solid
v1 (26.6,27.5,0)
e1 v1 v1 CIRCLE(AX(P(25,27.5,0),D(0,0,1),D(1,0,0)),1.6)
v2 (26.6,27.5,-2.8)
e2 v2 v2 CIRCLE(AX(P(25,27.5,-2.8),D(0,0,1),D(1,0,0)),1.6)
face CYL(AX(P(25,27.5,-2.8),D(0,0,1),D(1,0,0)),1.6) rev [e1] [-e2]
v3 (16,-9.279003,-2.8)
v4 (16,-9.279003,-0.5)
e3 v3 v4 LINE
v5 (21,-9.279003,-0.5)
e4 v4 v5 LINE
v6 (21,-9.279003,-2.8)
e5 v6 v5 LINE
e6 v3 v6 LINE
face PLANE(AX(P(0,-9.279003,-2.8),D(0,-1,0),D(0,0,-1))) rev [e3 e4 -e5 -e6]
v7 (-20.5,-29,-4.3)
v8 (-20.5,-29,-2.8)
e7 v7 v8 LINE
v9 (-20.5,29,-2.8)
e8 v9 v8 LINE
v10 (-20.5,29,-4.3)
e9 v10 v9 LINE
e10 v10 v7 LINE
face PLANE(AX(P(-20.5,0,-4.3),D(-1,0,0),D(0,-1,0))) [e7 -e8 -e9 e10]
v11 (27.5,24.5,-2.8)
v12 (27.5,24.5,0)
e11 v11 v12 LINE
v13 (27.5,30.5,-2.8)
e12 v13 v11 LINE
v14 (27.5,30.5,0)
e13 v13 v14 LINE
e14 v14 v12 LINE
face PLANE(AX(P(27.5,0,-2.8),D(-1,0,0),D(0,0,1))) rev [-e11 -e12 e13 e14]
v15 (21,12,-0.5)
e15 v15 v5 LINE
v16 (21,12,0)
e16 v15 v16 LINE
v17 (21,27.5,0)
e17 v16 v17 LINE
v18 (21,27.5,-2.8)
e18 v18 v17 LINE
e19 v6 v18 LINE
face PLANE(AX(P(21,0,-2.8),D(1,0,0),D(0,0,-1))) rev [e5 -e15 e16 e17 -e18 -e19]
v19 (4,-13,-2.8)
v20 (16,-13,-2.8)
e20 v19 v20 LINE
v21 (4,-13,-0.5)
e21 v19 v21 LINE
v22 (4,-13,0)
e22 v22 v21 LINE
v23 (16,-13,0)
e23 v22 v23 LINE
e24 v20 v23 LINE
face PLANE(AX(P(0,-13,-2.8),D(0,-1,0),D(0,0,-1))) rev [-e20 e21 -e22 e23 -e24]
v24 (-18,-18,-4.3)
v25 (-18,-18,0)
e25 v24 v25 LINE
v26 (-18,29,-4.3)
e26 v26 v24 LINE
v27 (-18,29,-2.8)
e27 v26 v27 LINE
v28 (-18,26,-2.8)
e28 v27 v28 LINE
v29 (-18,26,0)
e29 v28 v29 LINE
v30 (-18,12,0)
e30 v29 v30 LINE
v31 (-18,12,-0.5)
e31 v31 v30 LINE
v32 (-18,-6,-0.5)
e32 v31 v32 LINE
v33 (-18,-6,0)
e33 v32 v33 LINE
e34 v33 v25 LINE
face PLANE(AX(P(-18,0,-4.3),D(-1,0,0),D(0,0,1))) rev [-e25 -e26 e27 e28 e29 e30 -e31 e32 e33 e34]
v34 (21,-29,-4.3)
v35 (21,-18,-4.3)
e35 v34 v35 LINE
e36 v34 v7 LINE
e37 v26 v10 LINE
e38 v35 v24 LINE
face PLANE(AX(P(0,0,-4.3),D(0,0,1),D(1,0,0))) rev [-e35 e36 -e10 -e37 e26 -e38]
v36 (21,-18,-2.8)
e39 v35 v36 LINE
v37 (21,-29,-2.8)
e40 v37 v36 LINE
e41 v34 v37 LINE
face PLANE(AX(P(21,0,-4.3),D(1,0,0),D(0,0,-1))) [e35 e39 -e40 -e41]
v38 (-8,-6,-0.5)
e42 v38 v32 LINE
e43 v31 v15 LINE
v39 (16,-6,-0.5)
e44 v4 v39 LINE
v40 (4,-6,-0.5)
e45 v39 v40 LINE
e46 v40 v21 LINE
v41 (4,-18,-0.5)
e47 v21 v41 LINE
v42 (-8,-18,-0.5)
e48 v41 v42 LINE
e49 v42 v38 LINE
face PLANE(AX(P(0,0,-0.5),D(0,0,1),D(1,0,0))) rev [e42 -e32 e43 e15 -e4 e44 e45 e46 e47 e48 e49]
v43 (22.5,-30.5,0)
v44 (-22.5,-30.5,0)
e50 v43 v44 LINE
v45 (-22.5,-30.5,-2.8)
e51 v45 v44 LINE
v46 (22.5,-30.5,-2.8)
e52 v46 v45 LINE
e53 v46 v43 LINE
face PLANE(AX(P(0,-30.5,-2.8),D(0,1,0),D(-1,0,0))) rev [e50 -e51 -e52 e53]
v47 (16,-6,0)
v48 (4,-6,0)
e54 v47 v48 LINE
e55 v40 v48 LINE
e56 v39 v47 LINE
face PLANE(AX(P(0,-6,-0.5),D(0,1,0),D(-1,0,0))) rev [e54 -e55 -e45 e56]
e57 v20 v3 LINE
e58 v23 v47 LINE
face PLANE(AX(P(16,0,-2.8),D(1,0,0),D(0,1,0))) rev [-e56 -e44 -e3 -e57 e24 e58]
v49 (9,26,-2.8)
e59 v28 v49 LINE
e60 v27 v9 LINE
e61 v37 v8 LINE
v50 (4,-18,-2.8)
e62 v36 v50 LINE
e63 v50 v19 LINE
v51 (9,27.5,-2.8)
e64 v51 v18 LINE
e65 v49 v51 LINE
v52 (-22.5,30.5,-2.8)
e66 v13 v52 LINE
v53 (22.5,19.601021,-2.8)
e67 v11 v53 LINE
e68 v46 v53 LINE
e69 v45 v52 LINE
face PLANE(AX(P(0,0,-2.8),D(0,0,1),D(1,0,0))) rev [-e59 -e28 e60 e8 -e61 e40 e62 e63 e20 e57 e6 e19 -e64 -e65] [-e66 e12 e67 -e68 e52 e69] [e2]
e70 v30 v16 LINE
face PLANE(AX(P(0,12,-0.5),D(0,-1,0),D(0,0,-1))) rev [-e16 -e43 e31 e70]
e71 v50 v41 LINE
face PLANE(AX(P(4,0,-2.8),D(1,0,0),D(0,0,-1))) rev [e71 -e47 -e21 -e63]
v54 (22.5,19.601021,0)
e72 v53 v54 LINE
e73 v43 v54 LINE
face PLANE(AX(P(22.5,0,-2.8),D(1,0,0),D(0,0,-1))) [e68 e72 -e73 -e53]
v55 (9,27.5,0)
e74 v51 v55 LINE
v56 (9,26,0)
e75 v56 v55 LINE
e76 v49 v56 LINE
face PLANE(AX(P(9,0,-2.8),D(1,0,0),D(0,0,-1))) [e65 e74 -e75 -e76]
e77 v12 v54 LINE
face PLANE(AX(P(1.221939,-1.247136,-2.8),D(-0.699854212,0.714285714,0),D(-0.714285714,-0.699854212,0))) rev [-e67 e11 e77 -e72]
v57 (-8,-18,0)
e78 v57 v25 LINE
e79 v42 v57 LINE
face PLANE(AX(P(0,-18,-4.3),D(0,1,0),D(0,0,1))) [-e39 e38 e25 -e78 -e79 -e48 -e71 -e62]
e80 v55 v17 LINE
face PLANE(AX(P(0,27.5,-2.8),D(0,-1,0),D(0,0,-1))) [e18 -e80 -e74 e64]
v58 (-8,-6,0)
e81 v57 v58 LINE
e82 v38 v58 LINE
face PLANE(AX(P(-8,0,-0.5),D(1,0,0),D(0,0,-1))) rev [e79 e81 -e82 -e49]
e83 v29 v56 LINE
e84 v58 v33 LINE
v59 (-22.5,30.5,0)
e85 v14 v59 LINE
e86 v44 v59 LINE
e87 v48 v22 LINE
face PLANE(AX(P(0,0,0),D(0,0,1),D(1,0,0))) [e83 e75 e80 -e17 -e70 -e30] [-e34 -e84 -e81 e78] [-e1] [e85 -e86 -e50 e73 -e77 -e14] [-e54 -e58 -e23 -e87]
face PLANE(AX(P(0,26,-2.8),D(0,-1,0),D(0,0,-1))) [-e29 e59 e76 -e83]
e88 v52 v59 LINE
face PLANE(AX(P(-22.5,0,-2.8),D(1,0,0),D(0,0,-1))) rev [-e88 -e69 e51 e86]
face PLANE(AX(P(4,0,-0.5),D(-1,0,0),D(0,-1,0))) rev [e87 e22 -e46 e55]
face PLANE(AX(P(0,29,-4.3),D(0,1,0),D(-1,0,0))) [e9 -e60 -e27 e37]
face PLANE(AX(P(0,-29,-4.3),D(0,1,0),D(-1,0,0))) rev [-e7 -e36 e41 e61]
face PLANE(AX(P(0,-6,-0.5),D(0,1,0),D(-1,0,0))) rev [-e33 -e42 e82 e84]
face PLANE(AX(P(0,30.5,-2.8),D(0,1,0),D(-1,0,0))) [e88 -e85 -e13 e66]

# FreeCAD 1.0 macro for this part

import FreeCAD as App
import Part
import Sketcher
from FreeCAD import Vector

doc = App.newDocument("Part")
body = doc.addObject("PartDesign::Body", "Body")

# Sketch on XY plane
sketch1 = body.newObject("Sketcher::SketchObject", "Sketch")
sketch1.AttachmentSupport = (doc.getObject("XY_Plane"), [""])
sketch1.MapMode = "FlatFace"
sketch1.addGeometry(Part.LineSegment(Vector(22.5, -30.5, 0), Vector(22.5, 19.6, 0)), False)
sketch1.addGeometry(Part.LineSegment(Vector(22.5, 19.6, 0), Vector(27.5, 24.5, 0)), False)
sketch1.addGeometry(Part.LineSegment(Vector(27.5, 24.5, 0), Vector(27.5, 30.5, 0)), False)
sketch1.addGeometry(Part.LineSegment(Vector(27.5, 30.5, 0), Vector(-22.5, 30.5, 0)), False)
sketch1.addGeometry(Part.LineSegment(Vector(-22.5, 30.5, 0), Vector(-22.5, -30.5, 0)), False)
sketch1.addGeometry(Part.LineSegment(Vector(-22.5, -30.5, 0), Vector(22.5, -30.5, 0)), False)
sketch1.addGeometry(Part.LineSegment(Vector(21, -18, 0), Vector(21, -29, 0)), False)
sketch1.addGeometry(Part.LineSegment(Vector(21, -29, 0), Vector(-20.5, -29, 0)), False)
sketch1.addGeometry(Part.LineSegment(Vector(-20.5, -29, 0), Vector(-20.5, 29, 0)), False)
sketch1.addGeometry(Part.LineSegment(Vector(-20.5, 29, 0), Vector(-18, 29, 0)), False)
sketch1.addGeometry(Part.LineSegment(Vector(-18, 29, 0), Vector(-18, 26, 0)), False)
sketch1.addGeometry(Part.LineSegment(Vector(-18, 26, 0), Vector(9, 26, 0)), False)
sketch1.addGeometry(Part.LineSegment(Vector(9, 26, 0), Vector(9, 27.5, 0)), False)
sketch1.addGeometry(Part.LineSegment(Vector(9, 27.5, 0), Vector(21, 27.5, 0)), False)
sketch1.addGeometry(Part.LineSegment(Vector(21, 27.5, 0), Vector(21, -9.3, 0)), False)
sketch1.addGeometry(Part.LineSegment(Vector(21, -9.3, 0), Vector(16, -9.3, 0)), False)
sketch1.addGeometry(Part.LineSegment(Vector(16, -9.3, 0), Vector(16, -13, 0)), False)
sketch1.addGeometry(Part.LineSegment(Vector(16, -13, 0), Vector(4, -13, 0)), False)
sketch1.addGeometry(Part.LineSegment(Vector(4, -13, 0), Vector(4, -18, 0)), False)
sketch1.addGeometry(Part.LineSegment(Vector(4, -18, 0), Vector(21, -18, 0)), False)
sketch1.addGeometry(Part.Circle(Vector(25, 27.5, 0), Vector(0, 0, 1), 1.6), False)
sketch1.addConstraint(Sketcher.Constraint("Coincident", 0, 2, 1, 1))
sketch1.addConstraint(Sketcher.Constraint("Coincident", 1, 2, 2, 1))
sketch1.addConstraint(Sketcher.Constraint("Coincident", 2, 2, 3, 1))
sketch1.addConstraint(Sketcher.Constraint("Coincident", 3, 2, 4, 1))
sketch1.addConstraint(Sketcher.Constraint("Coincident", 4, 2, 5, 1))
sketch1.addConstraint(Sketcher.Constraint("Coincident", 5, 2, 0, 1))
sketch1.addConstraint(Sketcher.Constraint("Coincident", 6, 2, 7, 1))
sketch1.addConstraint(Sketcher.Constraint("Coincident", 7, 2, 8, 1))
sketch1.addConstraint(Sketcher.Constraint("Coincident", 8, 2, 9, 1))
sketch1.addConstraint(Sketcher.Constraint("Coincident", 9, 2, 10, 1))
sketch1.addConstraint(Sketcher.Constraint("Coincident", 10, 2, 11, 1))
sketch1.addConstraint(Sketcher.Constraint("Coincident", 11, 2, 12, 1))
sketch1.addConstraint(Sketcher.Constraint("Coincident", 12, 2, 13, 1))
sketch1.addConstraint(Sketcher.Constraint("Coincident", 13, 2, 14, 1))
sketch1.addConstraint(Sketcher.Constraint("Coincident", 14, 2, 15, 1))
sketch1.addConstraint(Sketcher.Constraint("Coincident", 15, 2, 16, 1))
sketch1.addConstraint(Sketcher.Constraint("Coincident", 16, 2, 17, 1))
sketch1.addConstraint(Sketcher.Constraint("Coincident", 17, 2, 18, 1))
sketch1.addConstraint(Sketcher.Constraint("Coincident", 18, 2, 19, 1))
sketch1.addConstraint(Sketcher.Constraint("Coincident", 19, 2, 6, 1))
sketch1.addConstraint(Sketcher.Constraint("Vertical", 0))
sketch1.addConstraint(Sketcher.Constraint("Vertical", 2))
sketch1.addConstraint(Sketcher.Constraint("Horizontal", 3))
sketch1.addConstraint(Sketcher.Constraint("Vertical", 4))
sketch1.addConstraint(Sketcher.Constraint("Horizontal", 5))
sketch1.addConstraint(Sketcher.Constraint("Vertical", 6))
sketch1.addConstraint(Sketcher.Constraint("Horizontal", 7))
sketch1.addConstraint(Sketcher.Constraint("Vertical", 8))
sketch1.addConstraint(Sketcher.Constraint("Horizontal", 9))
sketch1.addConstraint(Sketcher.Constraint("Vertical", 10))
sketch1.addConstraint(Sketcher.Constraint("Horizontal", 11))
sketch1.addConstraint(Sketcher.Constraint("Vertical", 12))
sketch1.addConstraint(Sketcher.Constraint("Horizontal", 13))
sketch1.addConstraint(Sketcher.Constraint("Vertical", 14))
sketch1.addConstraint(Sketcher.Constraint("Horizontal", 15))
sketch1.addConstraint(Sketcher.Constraint("Vertical", 16))
sketch1.addConstraint(Sketcher.Constraint("Horizontal", 17))
sketch1.addConstraint(Sketcher.Constraint("Vertical", 18))
sketch1.addConstraint(Sketcher.Constraint("Horizontal", 19))
sketch1.addConstraint(Sketcher.Constraint("Symmetric", 3, 2, 5, 2, -1, 1))
sketch1.addConstraint(Sketcher.Constraint("Horizontal", 20, 3, 12, 2))
sketch1.addConstraint(Sketcher.Constraint("Vertical", 6, 2, 13, 2))
sketch1.addConstraint(Sketcher.Constraint("Equal", 13, 17))
sketch1.addConstraint(Sketcher.Constraint("Equal", 15, 18))
sketch1.addConstraint(Sketcher.Constraint("Diameter", 20, 3.2))
sketch1.addConstraint(Sketcher.Constraint("DistanceX", 3, 2, 3, 1, 50.0))
sketch1.addConstraint(Sketcher.Constraint("DistanceX", 5, 1, 5, 2, 45.0))
sketch1.addConstraint(Sketcher.Constraint("DistanceX", 11, 1, 11, 2, 27.0))
sketch1.addConstraint(Sketcher.Constraint("DistanceX", 13, 1, 13, 2, 12.0))
sketch1.addConstraint(Sketcher.Constraint("DistanceX", 15, 2, 15, 1, 5.0))
sketch1.addConstraint(Sketcher.Constraint("DistanceY", 2, 1, 2, 2, 6.0))
sketch1.addConstraint(Sketcher.Constraint("DistanceY", 4, 2, 4, 1, 61.0))
sketch1.addConstraint(Sketcher.Constraint("DistanceY", 6, 2, 6, 1, 11.0))
sketch1.addConstraint(Sketcher.Constraint("DistanceY", 8, 1, 8, 2, 58.0))
sketch1.addConstraint(Sketcher.Constraint("DistanceY", 10, 2, 10, 1, 3.0))
sketch1.addConstraint(Sketcher.Constraint("Distance", 1, 7.0))
sketch1.addConstraint(Sketcher.Constraint("DistanceX", 7, 2, 7, 1, 41.5))
sketch1.addConstraint(Sketcher.Constraint("DistanceY", 12, 1, 12, 2, 1.5))
sketch1.addConstraint(Sketcher.Constraint("DistanceX", -1, 1, 20, 3, 25.0))
sketch1.addConstraint(Sketcher.Constraint("DistanceX", -1, 1, 6, 2, 21.0))
sketch1.addConstraint(Sketcher.Constraint("DistanceY", 6, 2, -1, 1, 29.0))
sketch1.addConstraint(Sketcher.Constraint("DistanceY", 14, 2, 14, 1, 36.779003))
pad1 = body.newObject("PartDesign::Pad", "Pad")
pad1.Profile = sketch1
pad1.Length = 2.8
pad1.Reversed = True

# Sketch on XY plane
sketch2 = body.newObject("Sketcher::SketchObject", "Sketch001")
sketch2.AttachmentSupport = (doc.getObject("XY_Plane"), [""])
sketch2.MapMode = "FlatFace"
sketch2.addGeometry(Part.LineSegment(Vector(16, -9.3, 0), Vector(21, -9.3, 0)), False)
sketch2.addGeometry(Part.LineSegment(Vector(21, -9.3, 0), Vector(21, 12, 0)), False)
sketch2.addGeometry(Part.LineSegment(Vector(21, 12, 0), Vector(-18, 12, 0)), False)
sketch2.addGeometry(Part.LineSegment(Vector(-18, 12, 0), Vector(-18, -6, 0)), False)
sketch2.addGeometry(Part.LineSegment(Vector(-18, -6, 0), Vector(-8, -6, 0)), False)
sketch2.addGeometry(Part.LineSegment(Vector(-8, -6, 0), Vector(-8, -18, 0)), False)
sketch2.addGeometry(Part.LineSegment(Vector(-8, -18, 0), Vector(4, -18, 0)), False)
sketch2.addGeometry(Part.LineSegment(Vector(4, -18, 0), Vector(4, -6, 0)), False)
sketch2.addGeometry(Part.LineSegment(Vector(4, -6, 0), Vector(16, -6, 0)), False)
sketch2.addGeometry(Part.LineSegment(Vector(16, -6, 0), Vector(16, -9.3, 0)), False)
sketch2.addConstraint(Sketcher.Constraint("Coincident", 0, 2, 1, 1))
sketch2.addConstraint(Sketcher.Constraint("Coincident", 1, 2, 2, 1))
sketch2.addConstraint(Sketcher.Constraint("Coincident", 2, 2, 3, 1))
sketch2.addConstraint(Sketcher.Constraint("Coincident", 3, 2, 4, 1))
sketch2.addConstraint(Sketcher.Constraint("Coincident", 4, 2, 5, 1))
sketch2.addConstraint(Sketcher.Constraint("Coincident", 5, 2, 6, 1))
sketch2.addConstraint(Sketcher.Constraint("Coincident", 6, 2, 7, 1))
sketch2.addConstraint(Sketcher.Constraint("Coincident", 7, 2, 8, 1))
sketch2.addConstraint(Sketcher.Constraint("Coincident", 8, 2, 9, 1))
sketch2.addConstraint(Sketcher.Constraint("Coincident", 9, 2, 0, 1))
sketch2.addConstraint(Sketcher.Constraint("Horizontal", 0))
sketch2.addConstraint(Sketcher.Constraint("Vertical", 1))
sketch2.addConstraint(Sketcher.Constraint("Horizontal", 2))
sketch2.addConstraint(Sketcher.Constraint("Vertical", 3))
sketch2.addConstraint(Sketcher.Constraint("Horizontal", 4))
sketch2.addConstraint(Sketcher.Constraint("Vertical", 5))
sketch2.addConstraint(Sketcher.Constraint("Horizontal", 6))
sketch2.addConstraint(Sketcher.Constraint("Vertical", 7))
sketch2.addConstraint(Sketcher.Constraint("Horizontal", 8))
sketch2.addConstraint(Sketcher.Constraint("Vertical", 9))
sketch2.addConstraint(Sketcher.Constraint("Horizontal", 4, 2, 7, 2))
sketch2.addConstraint(Sketcher.Constraint("Equal", 6, 8))
sketch2.addConstraint(Sketcher.Constraint("Equal", 8, 5))
sketch2.addConstraint(Sketcher.Constraint("DistanceX", 0, 1, 0, 2, 5.0))
sketch2.addConstraint(Sketcher.Constraint("DistanceX", 2, 2, 2, 1, 39.0))
sketch2.addConstraint(Sketcher.Constraint("DistanceX", 4, 1, 4, 2, 10.0))
sketch2.addConstraint(Sketcher.Constraint("DistanceY", 3, 2, 3, 1, 18.0))
sketch2.addConstraint(Sketcher.Constraint("DistanceX", -1, 1, 0, 2, 21.0))
sketch2.addConstraint(Sketcher.Constraint("DistanceY", -1, 1, 1, 2, 12.0))
sketch2.addConstraint(Sketcher.Constraint("DistanceY", 1, 1, 1, 2, 21.279003))
pad2 = body.newObject("PartDesign::Pad", "Pad001")
pad2.Profile = sketch2
pad2.Length = 0.5
pad2.Reversed = True

# Sketch on XY plane
sketch3 = body.newObject("Sketcher::SketchObject", "Sketch002")
sketch3.AttachmentSupport = (doc.getObject("XY_Plane"), [""])
sketch3.MapMode = "FlatFace"
sketch3.addGeometry(Part.LineSegment(Vector(-20.5, -29, 0), Vector(21, -29, 0)), False)
sketch3.addGeometry(Part.LineSegment(Vector(21, -29, 0), Vector(21, -18, 0)), False)
sketch3.addGeometry(Part.LineSegment(Vector(21, -18, 0), Vector(-18, -18, 0)), False)
sketch3.addGeometry(Part.LineSegment(Vector(-18, -18, 0), Vector(-18, 29, 0)), False)
sketch3.addGeometry(Part.LineSegment(Vector(-18, 29, 0), Vector(-20.5, 29, 0)), False)
sketch3.addGeometry(Part.LineSegment(Vector(-20.5, 29, 0), Vector(-20.5, -29, 0)), False)
sketch3.addConstraint(Sketcher.Constraint("Coincident", 0, 2, 1, 1))
sketch3.addConstraint(Sketcher.Constraint("Coincident", 1, 2, 2, 1))
sketch3.addConstraint(Sketcher.Constraint("Coincident", 2, 2, 3, 1))
sketch3.addConstraint(Sketcher.Constraint("Coincident", 3, 2, 4, 1))
sketch3.addConstraint(Sketcher.Constraint("Coincident", 4, 2, 5, 1))
sketch3.addConstraint(Sketcher.Constraint("Coincident", 5, 2, 0, 1))
sketch3.addConstraint(Sketcher.Constraint("Horizontal", 0))
sketch3.addConstraint(Sketcher.Constraint("Vertical", 1))
sketch3.addConstraint(Sketcher.Constraint("Horizontal", 2))
sketch3.addConstraint(Sketcher.Constraint("Vertical", 3))
sketch3.addConstraint(Sketcher.Constraint("Horizontal", 4))
sketch3.addConstraint(Sketcher.Constraint("Vertical", 5))
sketch3.addConstraint(Sketcher.Constraint("DistanceX", 2, 2, 2, 1, 39.0))
sketch3.addConstraint(Sketcher.Constraint("DistanceY", 1, 1, 1, 2, 11.0))
sketch3.addConstraint(Sketcher.Constraint("DistanceY", 3, 1, 3, 2, 47.0))
sketch3.addConstraint(Sketcher.Constraint("DistanceX", 0, 1, 0, 2, 41.5))
sketch3.addConstraint(Sketcher.Constraint("DistanceX", -1, 1, 0, 2, 21.0))
sketch3.addConstraint(Sketcher.Constraint("DistanceY", 0, 2, -1, 1, 29.0))
pad3 = body.newObject("PartDesign::Pad", "Pad002")
pad3.Profile = sketch3
pad3.Length = 4.3
pad3.Reversed = True

doc.recompute()
